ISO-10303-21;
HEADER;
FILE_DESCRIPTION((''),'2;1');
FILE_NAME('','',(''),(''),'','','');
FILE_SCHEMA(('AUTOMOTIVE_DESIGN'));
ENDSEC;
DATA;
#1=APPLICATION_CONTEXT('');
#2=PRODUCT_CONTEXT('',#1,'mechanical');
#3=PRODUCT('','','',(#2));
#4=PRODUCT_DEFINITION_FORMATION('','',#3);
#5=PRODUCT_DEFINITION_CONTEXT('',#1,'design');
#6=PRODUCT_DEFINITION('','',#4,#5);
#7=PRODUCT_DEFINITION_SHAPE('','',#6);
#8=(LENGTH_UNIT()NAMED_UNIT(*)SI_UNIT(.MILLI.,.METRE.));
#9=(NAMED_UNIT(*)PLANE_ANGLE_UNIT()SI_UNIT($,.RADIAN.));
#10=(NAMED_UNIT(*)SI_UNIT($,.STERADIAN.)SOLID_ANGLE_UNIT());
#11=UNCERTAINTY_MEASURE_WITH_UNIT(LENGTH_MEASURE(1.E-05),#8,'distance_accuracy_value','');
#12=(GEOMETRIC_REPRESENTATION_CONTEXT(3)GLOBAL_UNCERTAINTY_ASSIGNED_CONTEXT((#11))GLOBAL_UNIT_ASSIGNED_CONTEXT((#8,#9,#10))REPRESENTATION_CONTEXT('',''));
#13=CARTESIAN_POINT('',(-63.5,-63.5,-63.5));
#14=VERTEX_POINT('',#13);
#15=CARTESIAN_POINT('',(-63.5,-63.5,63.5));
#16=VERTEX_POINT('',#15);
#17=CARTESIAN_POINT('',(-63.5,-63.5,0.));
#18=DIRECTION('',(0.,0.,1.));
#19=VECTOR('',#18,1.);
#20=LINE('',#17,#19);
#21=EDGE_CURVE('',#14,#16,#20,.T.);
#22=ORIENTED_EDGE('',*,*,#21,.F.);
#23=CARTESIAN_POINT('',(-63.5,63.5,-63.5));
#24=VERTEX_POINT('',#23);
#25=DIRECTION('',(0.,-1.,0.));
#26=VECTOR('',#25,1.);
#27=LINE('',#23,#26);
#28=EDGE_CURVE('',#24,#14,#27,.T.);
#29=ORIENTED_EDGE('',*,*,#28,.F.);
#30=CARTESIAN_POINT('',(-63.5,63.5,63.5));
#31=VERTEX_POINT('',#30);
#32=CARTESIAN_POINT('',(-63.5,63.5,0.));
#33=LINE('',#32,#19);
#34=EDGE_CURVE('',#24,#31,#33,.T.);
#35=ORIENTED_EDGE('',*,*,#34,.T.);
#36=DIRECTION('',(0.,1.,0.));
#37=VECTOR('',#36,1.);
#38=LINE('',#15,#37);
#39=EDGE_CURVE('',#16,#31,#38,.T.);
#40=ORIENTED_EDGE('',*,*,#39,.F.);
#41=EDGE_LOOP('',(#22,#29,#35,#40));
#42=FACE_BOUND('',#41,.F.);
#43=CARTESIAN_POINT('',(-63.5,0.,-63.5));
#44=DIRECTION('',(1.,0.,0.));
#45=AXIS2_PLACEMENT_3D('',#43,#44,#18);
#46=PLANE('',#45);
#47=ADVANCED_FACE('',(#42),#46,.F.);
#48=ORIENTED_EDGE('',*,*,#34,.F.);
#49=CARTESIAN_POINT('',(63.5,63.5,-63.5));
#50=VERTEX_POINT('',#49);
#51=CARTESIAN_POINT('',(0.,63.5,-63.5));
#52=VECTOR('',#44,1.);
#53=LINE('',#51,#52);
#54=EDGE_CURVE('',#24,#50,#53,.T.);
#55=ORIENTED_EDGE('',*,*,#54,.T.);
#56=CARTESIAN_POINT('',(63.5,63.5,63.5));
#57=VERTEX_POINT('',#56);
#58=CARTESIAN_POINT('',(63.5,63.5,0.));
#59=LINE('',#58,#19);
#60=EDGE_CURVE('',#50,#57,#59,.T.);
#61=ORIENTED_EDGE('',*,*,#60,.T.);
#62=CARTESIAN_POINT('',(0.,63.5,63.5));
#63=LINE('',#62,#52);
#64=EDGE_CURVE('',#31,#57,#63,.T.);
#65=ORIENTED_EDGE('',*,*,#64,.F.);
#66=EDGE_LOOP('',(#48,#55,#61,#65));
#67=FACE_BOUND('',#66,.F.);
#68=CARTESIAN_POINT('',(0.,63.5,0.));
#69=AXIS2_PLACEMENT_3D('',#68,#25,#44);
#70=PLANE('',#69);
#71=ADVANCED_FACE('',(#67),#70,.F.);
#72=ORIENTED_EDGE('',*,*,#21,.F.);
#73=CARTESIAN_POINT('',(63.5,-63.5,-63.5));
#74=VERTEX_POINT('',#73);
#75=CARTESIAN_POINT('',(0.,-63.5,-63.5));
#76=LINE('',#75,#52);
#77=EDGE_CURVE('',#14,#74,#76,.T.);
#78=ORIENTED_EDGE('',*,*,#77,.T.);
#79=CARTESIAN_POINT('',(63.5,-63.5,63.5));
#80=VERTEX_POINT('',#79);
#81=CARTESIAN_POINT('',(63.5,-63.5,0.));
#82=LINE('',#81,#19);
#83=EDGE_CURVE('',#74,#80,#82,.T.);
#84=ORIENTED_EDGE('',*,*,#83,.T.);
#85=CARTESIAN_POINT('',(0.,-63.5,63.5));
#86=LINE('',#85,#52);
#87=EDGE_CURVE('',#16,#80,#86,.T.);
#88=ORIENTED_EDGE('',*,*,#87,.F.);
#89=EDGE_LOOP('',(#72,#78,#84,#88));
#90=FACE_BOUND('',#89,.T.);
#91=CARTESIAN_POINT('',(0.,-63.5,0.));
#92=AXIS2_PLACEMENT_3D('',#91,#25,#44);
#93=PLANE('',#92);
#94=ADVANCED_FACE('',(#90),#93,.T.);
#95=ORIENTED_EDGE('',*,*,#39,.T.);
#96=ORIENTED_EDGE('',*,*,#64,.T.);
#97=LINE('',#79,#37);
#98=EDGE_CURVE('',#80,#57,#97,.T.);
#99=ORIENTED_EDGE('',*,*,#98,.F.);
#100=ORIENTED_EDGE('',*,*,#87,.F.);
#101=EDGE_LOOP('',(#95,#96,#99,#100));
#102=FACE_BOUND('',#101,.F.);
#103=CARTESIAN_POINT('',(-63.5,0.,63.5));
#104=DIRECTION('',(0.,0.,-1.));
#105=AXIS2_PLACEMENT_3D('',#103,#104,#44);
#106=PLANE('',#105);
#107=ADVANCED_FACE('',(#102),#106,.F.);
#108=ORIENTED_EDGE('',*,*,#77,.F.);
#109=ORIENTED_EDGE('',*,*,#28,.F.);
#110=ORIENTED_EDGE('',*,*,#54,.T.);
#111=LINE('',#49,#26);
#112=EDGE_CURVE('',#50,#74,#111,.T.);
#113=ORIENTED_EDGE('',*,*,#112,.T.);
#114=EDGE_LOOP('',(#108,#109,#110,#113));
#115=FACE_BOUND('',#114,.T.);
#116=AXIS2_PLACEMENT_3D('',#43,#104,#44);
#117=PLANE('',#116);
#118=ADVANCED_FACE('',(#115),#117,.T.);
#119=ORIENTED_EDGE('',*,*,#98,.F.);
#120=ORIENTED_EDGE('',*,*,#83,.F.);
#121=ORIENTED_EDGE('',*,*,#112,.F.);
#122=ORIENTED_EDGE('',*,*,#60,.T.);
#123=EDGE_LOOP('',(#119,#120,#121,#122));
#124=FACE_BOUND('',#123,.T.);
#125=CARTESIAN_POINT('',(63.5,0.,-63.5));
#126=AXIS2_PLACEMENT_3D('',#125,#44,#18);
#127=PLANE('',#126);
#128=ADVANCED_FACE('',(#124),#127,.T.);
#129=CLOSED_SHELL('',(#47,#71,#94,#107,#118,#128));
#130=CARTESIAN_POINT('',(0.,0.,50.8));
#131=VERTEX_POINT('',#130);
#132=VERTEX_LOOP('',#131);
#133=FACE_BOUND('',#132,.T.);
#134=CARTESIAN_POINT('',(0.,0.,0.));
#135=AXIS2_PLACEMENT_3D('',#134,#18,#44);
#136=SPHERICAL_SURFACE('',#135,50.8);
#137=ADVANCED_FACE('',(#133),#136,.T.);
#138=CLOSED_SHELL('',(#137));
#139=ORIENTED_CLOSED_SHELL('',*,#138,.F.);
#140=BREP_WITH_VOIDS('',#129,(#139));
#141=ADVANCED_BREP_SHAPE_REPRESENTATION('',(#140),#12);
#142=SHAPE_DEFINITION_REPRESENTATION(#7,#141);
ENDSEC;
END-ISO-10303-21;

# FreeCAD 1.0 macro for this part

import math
import FreeCAD as App
import Part
import Sketcher
Q = App.Units.Quantity


def add_polygon(sketch, points):
    """Adds a closed chain of lines whose ends are joined by coincident constraints."""
    first, n = sketch.GeometryCount, len(points)
    for a, b in zip(points, points[1:] + points[:1]):
        sketch.addGeometry(Part.LineSegment(App.Vector(*a, 0), App.Vector(*b, 0)), False)
    for i in range(n):
        sketch.addConstraint(Sketcher.Constraint("Coincident", first + i, 2, first + (i + 1) % n, 1))

doc = App.newDocument("Part")
body = doc.addObject("PartDesign::Body", "Body")

sketch1 = doc.addObject("Sketcher::SketchObject", "Sketch")
body.addObject(sketch1)
sketch1.AttachmentSupport = (doc.XZ_Plane, [""])
sketch1.MapMode = "FlatFace"
add_polygon(sketch1, [(-64, 64), (-64, -64), (64, -64), (64, 64)])
sketch1.addConstraint([
    Sketcher.Constraint("Vertical", 0),
    Sketcher.Constraint("Horizontal", 1),
    Sketcher.Constraint("Vertical", 2),
    Sketcher.Constraint("Horizontal", 3),
    Sketcher.Constraint("Symmetric", 0, 2, 2, 2, -1, 1),
    Sketcher.Constraint("Equal", 3, 0),
    Sketcher.Constraint("DistanceX", 1, 1, 1, 2, Q("5 in")),
])
pad1 = doc.addObject("PartDesign::Pad", "Pad")
body.addObject(pad1)
pad1.Profile = sketch1
pad1.Length = Q("5 in")
pad1.Midplane = True

sketch2 = doc.addObject("Sketcher::SketchObject", "Sketch001")
body.addObject(sketch2)
sketch2.AttachmentSupport = (doc.XZ_Plane, [""])
sketch2.MapMode = "FlatFace"
sketch2.addGeometry([
    Part.LineSegment(App.Vector(0, 51, 0), App.Vector(0, -51, 0)),
    Part.ArcOfCircle(Part.Circle(App.Vector(0, 0, 0), App.Vector(0, 0, 1), 51), math.radians(-90), math.radians(90)),
], False)
sketch2.addConstraint([
    Sketcher.Constraint("Coincident", 0, 1, 1, 2),
    Sketcher.Constraint("Coincident", 1, 1, 0, 2),
    Sketcher.Constraint("Vertical", 0),
    Sketcher.Constraint("Coincident", 1, 3, -1, 1),
    Sketcher.Constraint("PointOnObject", 0, 1, -2),
    Sketcher.Constraint("Radius", 1, Q("2 in")),
])
groove = doc.addObject("PartDesign::Groove", "Groove")
body.addObject(groove)
groove.Profile = sketch2
groove.ReferenceAxis = (sketch2, ["V_Axis"])
groove.Angle = 360

doc.recompute()
